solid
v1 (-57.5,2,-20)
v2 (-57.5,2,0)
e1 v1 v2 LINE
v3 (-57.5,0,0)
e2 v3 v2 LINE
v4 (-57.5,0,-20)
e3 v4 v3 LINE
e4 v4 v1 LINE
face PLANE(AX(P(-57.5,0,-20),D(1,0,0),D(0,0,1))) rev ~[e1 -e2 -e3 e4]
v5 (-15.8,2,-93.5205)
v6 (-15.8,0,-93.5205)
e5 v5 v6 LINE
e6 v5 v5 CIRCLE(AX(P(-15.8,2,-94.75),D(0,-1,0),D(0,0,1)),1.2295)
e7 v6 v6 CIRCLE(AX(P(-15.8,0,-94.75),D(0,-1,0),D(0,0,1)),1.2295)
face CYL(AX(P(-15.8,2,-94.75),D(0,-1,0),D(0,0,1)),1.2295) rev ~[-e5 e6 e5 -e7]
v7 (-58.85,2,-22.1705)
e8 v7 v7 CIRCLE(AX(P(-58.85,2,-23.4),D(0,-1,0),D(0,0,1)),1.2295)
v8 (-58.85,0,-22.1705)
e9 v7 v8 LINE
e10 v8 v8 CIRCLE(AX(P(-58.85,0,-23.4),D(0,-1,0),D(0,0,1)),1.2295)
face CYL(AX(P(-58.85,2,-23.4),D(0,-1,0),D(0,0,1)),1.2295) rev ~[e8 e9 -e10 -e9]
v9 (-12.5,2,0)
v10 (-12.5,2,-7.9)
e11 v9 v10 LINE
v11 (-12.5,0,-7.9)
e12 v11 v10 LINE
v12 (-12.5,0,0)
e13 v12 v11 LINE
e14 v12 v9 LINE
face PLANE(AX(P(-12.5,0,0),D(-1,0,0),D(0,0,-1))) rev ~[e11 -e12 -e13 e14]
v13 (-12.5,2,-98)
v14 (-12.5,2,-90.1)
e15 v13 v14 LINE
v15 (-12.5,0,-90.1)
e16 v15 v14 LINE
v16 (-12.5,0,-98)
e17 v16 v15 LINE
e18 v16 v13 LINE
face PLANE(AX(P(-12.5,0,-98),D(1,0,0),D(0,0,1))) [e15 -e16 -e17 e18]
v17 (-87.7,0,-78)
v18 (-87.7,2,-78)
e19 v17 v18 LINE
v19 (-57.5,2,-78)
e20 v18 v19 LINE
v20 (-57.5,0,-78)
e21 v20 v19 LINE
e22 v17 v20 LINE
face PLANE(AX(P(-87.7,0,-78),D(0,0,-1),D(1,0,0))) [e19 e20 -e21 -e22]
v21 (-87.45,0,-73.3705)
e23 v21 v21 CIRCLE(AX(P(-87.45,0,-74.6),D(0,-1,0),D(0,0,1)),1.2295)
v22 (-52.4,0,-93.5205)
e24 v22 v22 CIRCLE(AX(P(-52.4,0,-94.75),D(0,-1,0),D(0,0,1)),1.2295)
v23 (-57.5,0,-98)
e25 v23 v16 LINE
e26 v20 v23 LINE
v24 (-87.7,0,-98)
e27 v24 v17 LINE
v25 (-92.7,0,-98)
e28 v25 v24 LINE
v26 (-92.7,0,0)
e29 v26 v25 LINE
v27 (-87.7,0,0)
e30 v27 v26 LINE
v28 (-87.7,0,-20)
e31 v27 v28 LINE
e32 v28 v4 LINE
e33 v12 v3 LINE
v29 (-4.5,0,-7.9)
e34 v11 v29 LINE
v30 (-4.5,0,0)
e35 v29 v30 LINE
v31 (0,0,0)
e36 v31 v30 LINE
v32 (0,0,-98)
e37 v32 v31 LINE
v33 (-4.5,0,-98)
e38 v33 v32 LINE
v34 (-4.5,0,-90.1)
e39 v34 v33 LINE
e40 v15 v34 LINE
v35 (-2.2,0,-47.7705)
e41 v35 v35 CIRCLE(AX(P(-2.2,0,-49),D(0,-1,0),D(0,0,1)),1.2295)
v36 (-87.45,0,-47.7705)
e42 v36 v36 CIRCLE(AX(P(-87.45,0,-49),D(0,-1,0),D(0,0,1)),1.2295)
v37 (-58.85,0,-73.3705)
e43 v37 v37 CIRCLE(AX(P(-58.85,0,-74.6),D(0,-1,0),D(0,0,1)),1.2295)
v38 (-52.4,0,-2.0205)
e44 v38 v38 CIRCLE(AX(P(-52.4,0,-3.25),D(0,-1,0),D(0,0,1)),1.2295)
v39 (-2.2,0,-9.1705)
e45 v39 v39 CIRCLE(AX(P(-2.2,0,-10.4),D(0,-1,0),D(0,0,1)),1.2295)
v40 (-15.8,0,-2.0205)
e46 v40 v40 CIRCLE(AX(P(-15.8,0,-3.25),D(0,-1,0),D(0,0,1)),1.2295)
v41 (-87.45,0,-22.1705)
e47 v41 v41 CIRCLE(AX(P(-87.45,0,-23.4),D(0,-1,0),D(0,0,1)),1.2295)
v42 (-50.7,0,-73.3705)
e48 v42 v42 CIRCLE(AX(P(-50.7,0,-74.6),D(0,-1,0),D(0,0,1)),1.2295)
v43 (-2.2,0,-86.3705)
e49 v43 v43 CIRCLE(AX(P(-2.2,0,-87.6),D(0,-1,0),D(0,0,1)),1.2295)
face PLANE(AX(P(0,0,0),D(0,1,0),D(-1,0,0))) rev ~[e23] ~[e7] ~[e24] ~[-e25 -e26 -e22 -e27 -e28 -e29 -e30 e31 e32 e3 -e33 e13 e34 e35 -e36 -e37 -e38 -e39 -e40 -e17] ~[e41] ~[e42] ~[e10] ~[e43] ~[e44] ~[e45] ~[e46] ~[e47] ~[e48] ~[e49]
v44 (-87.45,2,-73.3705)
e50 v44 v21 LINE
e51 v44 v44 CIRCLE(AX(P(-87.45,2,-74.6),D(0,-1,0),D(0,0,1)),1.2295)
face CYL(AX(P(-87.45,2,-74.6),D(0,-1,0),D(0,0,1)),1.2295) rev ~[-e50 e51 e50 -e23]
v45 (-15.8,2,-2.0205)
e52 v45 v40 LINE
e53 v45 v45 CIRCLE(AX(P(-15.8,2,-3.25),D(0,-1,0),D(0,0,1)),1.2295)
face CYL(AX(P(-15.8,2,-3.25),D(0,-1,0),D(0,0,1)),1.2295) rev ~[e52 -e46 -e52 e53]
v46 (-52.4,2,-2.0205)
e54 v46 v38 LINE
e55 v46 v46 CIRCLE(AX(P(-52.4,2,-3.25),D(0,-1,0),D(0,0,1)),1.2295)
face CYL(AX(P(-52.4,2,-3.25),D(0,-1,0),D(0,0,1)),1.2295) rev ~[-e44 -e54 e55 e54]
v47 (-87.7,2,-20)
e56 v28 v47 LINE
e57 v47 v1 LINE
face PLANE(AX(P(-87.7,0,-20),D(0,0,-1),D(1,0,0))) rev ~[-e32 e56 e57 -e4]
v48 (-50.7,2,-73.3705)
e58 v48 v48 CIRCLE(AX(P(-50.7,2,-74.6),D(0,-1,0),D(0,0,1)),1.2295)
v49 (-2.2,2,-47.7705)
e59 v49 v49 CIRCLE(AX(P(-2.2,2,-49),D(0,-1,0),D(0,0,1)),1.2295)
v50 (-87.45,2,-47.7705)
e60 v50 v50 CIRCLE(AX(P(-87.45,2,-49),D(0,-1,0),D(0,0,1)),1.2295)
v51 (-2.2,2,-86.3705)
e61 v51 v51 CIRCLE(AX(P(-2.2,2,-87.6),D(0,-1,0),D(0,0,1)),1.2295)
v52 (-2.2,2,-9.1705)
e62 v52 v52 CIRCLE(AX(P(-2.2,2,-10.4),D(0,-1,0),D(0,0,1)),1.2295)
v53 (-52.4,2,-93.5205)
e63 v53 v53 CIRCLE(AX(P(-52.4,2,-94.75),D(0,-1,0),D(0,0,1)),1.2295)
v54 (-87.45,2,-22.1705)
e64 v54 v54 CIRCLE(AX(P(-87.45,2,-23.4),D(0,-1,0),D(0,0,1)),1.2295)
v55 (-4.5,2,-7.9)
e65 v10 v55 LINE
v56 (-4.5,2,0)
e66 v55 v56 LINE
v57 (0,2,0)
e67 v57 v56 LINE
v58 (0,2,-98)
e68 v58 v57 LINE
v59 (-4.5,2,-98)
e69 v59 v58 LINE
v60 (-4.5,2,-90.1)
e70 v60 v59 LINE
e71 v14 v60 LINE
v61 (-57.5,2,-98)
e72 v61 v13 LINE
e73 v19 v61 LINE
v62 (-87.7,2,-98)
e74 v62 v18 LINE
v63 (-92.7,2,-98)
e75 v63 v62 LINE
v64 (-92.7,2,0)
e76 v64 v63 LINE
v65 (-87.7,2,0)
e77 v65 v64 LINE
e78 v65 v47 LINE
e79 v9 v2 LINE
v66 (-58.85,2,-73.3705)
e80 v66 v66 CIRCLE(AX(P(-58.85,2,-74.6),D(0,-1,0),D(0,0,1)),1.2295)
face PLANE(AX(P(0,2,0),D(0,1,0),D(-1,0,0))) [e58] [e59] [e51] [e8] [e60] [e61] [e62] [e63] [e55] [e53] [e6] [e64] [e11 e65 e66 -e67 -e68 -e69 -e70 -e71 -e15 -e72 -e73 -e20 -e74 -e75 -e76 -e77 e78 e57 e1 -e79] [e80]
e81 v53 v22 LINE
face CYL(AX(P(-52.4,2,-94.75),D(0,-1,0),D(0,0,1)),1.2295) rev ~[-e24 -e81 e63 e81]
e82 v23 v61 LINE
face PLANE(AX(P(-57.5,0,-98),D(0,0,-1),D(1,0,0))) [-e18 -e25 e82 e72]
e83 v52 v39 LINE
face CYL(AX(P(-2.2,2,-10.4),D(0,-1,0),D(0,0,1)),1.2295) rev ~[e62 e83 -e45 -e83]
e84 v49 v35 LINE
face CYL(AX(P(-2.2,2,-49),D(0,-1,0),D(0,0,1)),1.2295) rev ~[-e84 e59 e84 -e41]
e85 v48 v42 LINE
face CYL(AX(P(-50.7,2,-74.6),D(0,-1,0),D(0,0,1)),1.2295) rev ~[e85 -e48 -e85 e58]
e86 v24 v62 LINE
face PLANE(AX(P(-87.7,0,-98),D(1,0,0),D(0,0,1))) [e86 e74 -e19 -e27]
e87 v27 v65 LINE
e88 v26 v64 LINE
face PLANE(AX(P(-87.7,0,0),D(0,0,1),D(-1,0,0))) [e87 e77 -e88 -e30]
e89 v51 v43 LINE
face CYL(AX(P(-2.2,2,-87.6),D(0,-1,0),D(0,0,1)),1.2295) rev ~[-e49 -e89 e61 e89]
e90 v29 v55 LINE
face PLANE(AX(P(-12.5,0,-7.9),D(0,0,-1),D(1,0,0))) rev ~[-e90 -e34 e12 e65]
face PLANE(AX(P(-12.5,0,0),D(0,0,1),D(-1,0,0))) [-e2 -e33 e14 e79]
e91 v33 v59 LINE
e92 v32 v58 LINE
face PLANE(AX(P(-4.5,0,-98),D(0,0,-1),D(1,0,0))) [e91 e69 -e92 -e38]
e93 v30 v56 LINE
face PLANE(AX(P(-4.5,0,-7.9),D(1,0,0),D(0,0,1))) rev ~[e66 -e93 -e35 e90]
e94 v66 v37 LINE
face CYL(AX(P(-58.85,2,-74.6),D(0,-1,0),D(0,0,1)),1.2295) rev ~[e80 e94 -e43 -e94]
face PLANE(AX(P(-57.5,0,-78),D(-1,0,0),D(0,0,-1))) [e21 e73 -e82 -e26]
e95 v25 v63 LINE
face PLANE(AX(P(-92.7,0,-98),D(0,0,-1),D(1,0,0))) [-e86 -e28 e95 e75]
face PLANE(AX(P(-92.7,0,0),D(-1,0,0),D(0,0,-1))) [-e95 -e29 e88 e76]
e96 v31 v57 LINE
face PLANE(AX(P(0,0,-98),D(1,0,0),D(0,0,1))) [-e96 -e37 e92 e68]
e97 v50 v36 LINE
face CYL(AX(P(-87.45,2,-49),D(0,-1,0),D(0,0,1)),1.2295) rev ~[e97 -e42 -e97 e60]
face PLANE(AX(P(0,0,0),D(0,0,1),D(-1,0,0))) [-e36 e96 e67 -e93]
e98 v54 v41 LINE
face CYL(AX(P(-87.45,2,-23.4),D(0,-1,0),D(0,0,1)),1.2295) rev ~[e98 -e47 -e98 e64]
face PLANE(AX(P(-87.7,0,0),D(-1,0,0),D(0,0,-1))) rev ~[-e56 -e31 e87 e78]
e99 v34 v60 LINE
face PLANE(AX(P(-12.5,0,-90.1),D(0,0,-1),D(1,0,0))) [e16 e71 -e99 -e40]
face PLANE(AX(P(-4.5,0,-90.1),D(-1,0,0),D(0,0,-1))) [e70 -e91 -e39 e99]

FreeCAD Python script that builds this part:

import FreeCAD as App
import Part
import Sketcher

V = App.Vector
Q = App.Units.Quantity

doc = App.newDocument("Part")
body = doc.addObject("PartDesign::Body", "Body")

# Sketch on XZ plane
sketch1 = body.newObject("Sketcher::SketchObject", "Sketch")
sketch1.AttachmentSupport = (doc.getObject("XZ_Plane"), [""])
sketch1.MapMode = "FlatFace"
sketch1.addGeometry(Part.LineSegment(V(-4.5, 0, 0), V(0, 0, 0)), False)
sketch1.addGeometry(Part.LineSegment(V(0, 0, 0), V(0, -98, 0)), False)
sketch1.addGeometry(Part.LineSegment(V(0, -98, 0), V(-4.5, -98, 0)), False)
sketch1.addGeometry(Part.LineSegment(V(-4.5, -98, 0), V(-4.5, -90.1, 0)), False)
sketch1.addGeometry(Part.LineSegment(V(-4.5, -90.1, 0), V(-12.5, -90.1, 0)), False)
sketch1.addGeometry(Part.LineSegment(V(-12.5, -90.1, 0), V(-12.5, -98, 0)), False)
sketch1.addGeometry(Part.LineSegment(V(-12.5, -98, 0), V(-57.5, -98, 0)), False)
sketch1.addGeometry(Part.LineSegment(V(-57.5, -98, 0), V(-57.5, -78, 0)), False)
sketch1.addGeometry(Part.LineSegment(V(-57.5, -78, 0), V(-87.7, -78, 0)), False)
sketch1.addGeometry(Part.LineSegment(V(-87.7, -78, 0), V(-87.7, -98, 0)), False)
sketch1.addGeometry(Part.LineSegment(V(-87.7, -98, 0), V(-92.7, -98, 0)), False)
sketch1.addGeometry(Part.LineSegment(V(-92.7, -98, 0), V(-92.7, 0, 0)), False)
sketch1.addGeometry(Part.LineSegment(V(-92.7, 0, 0), V(-87.7, 0, 0)), False)
sketch1.addGeometry(Part.LineSegment(V(-87.7, 0, 0), V(-87.7, -20, 0)), False)
sketch1.addGeometry(Part.LineSegment(V(-87.7, -20, 0), V(-57.5, -20, 0)), False)
sketch1.addGeometry(Part.LineSegment(V(-57.5, -20, 0), V(-57.5, 0, 0)), False)
sketch1.addGeometry(Part.LineSegment(V(-57.5, 0, 0), V(-12.5, 0, 0)), False)
sketch1.addGeometry(Part.LineSegment(V(-12.5, 0, 0), V(-12.5, -7.9, 0)), False)
sketch1.addGeometry(Part.LineSegment(V(-12.5, -7.9, 0), V(-4.5, -7.9, 0)), False)
sketch1.addGeometry(Part.LineSegment(V(-4.5, -7.9, 0), V(-4.5, 0, 0)), False)
sketch1.addConstraint(Sketcher.Constraint("Coincident", 0, 2, 1, 1))
sketch1.addConstraint(Sketcher.Constraint("Coincident", 1, 2, 2, 1))
sketch1.addConstraint(Sketcher.Constraint("Coincident", 2, 2, 3, 1))
sketch1.addConstraint(Sketcher.Constraint("Coincident", 3, 2, 4, 1))
sketch1.addConstraint(Sketcher.Constraint("Coincident", 4, 2, 5, 1))
sketch1.addConstraint(Sketcher.Constraint("Coincident", 5, 2, 6, 1))
sketch1.addConstraint(Sketcher.Constraint("Coincident", 6, 2, 7, 1))
sketch1.addConstraint(Sketcher.Constraint("Coincident", 7, 2, 8, 1))
sketch1.addConstraint(Sketcher.Constraint("Coincident", 8, 2, 9, 1))
sketch1.addConstraint(Sketcher.Constraint("Coincident", 9, 2, 10, 1))
sketch1.addConstraint(Sketcher.Constraint("Coincident", 10, 2, 11, 1))
sketch1.addConstraint(Sketcher.Constraint("Coincident", 11, 2, 12, 1))
sketch1.addConstraint(Sketcher.Constraint("Coincident", 12, 2, 13, 1))
sketch1.addConstraint(Sketcher.Constraint("Coincident", 13, 2, 14, 1))
sketch1.addConstraint(Sketcher.Constraint("Coincident", 14, 2, 15, 1))
sketch1.addConstraint(Sketcher.Constraint("Coincident", 15, 2, 16, 1))
sketch1.addConstraint(Sketcher.Constraint("Coincident", 16, 2, 17, 1))
sketch1.addConstraint(Sketcher.Constraint("Coincident", 17, 2, 18, 1))
sketch1.addConstraint(Sketcher.Constraint("Coincident", 18, 2, 19, 1))
sketch1.addConstraint(Sketcher.Constraint("Coincident", 19, 2, 0, 1))
sketch1.addConstraint(Sketcher.Constraint("Horizontal", 0))
sketch1.addConstraint(Sketcher.Constraint("Vertical", 1))
sketch1.addConstraint(Sketcher.Constraint("Horizontal", 2))
sketch1.addConstraint(Sketcher.Constraint("Vertical", 3))
sketch1.addConstraint(Sketcher.Constraint("Horizontal", 4))
sketch1.addConstraint(Sketcher.Constraint("Vertical", 5))
sketch1.addConstraint(Sketcher.Constraint("Horizontal", 6))
sketch1.addConstraint(Sketcher.Constraint("Vertical", 7))
sketch1.addConstraint(Sketcher.Constraint("Horizontal", 8))
sketch1.addConstraint(Sketcher.Constraint("Vertical", 9))
sketch1.addConstraint(Sketcher.Constraint("Horizontal", 10))
sketch1.addConstraint(Sketcher.Constraint("Vertical", 11))
sketch1.addConstraint(Sketcher.Constraint("Horizontal", 12))
sketch1.addConstraint(Sketcher.Constraint("Vertical", 13))
sketch1.addConstraint(Sketcher.Constraint("Horizontal", 14))
sketch1.addConstraint(Sketcher.Constraint("Vertical", 15))
sketch1.addConstraint(Sketcher.Constraint("Horizontal", 16))
sketch1.addConstraint(Sketcher.Constraint("Vertical", 17))
sketch1.addConstraint(Sketcher.Constraint("Horizontal", 18))
sketch1.addConstraint(Sketcher.Constraint("Vertical", 19))
sketch1.addConstraint(Sketcher.Constraint("Coincident", 0, 2, -1, 1))
sketch1.addConstraint(Sketcher.Constraint("PointOnObject", 11, 2, -1))
sketch1.addConstraint(Sketcher.Constraint("PointOnObject", 15, 2, -1))
sketch1.addConstraint(Sketcher.Constraint("Horizontal", 2, 2, 5, 2))
sketch1.addConstraint(Sketcher.Constraint("Horizontal", 6, 2, 9, 2))
sketch1.addConstraint(Sketcher.Constraint("Vertical", 9, 2, 12, 2))
sketch1.addConstraint(Sketcher.Constraint("Vertical", 7, 2, 14, 2))
sketch1.addConstraint(Sketcher.Constraint("Vertical", 5, 2, 16, 2))
sketch1.addConstraint(Sketcher.Constraint("Vertical", 3, 2, 18, 2))
sketch1.addConstraint(Sketcher.Constraint("Equal", 9, 13))
sketch1.addConstraint(Sketcher.Constraint("Equal", 5, 17))
sketch1.addConstraint(Sketcher.Constraint("DistanceX", 4, 2, 4, 1, Q("8 mm")))
sketch1.addConstraint(Sketcher.Constraint("DistanceY", 1, 2, 1, 1, Q("98 mm")))
sketch1.addConstraint(Sketcher.Constraint("DistanceY", 7, 1, 7, 2, Q("20 mm")))
sketch1.addConstraint(Sketcher.Constraint("DistanceX", 0, 1, 0, 2, Q("4.5 mm")))
sketch1.addConstraint(Sketcher.Constraint("DistanceX", 8, 2, 8, 1, Q("30.2 mm")))
sketch1.addConstraint(Sketcher.Constraint("DistanceY", 3, 1, 3, 2, Q("7.9 mm")))
sketch1.addConstraint(Sketcher.Constraint("DistanceX", 6, 2, -1, 1, Q("57.5 mm")))
sketch1.addConstraint(Sketcher.Constraint("DistanceX", 10, 2, -1, 1, Q("92.7 mm")))
pad1 = body.newObject("PartDesign::Pad", "Pad")
pad1.Profile = sketch1
pad1.Length = 2
pad1.Reversed = True

# Sketch on XZ plane
sketch2 = body.newObject("Sketcher::SketchObject", "Sketch001")
sketch2.AttachmentSupport = (doc.getObject("XZ_Plane"), [""])
sketch2.MapMode = "FlatFace"
sketch2.AttachmentOffset = App.Placement(V(0, 0, -2), App.Rotation())
sketch2.addGeometry(Part.Circle(V(-2.2, -87.6, 0), V(0, 0, 1), 1.2), False)
sketch2.addGeometry(Part.Circle(V(-2.2, -49, 0), V(0, 0, 1), 1.2), False)
sketch2.addGeometry(Part.Circle(V(-15.8, -94.8, 0), V(0, 0, 1), 1.2), False)
sketch2.addGeometry(Part.Circle(V(-52.4, -94.8, 0), V(0, 0, 1), 1.2), False)
sketch2.addGeometry(Part.Circle(V(-58.9, -74.6, 0), V(0, 0, 1), 1.2), False)
sketch2.addGeometry(Part.Circle(V(-87.5, -74.6, 0), V(0, 0, 1), 1.2), False)
sketch2.addGeometry(Part.Circle(V(-87.5, -49, 0), V(0, 0, 1), 1.2), False)
sketch2.addGeometry(Part.Circle(V(-52.4, -3.2, 0), V(0, 0, 1), 1.2), False)
sketch2.addGeometry(Part.Circle(V(-15.8, -3.2, 0), V(0, 0, 1), 1.2), False)
sketch2.addGeometry(Part.Circle(V(-87.5, -23.4, 0), V(0, 0, 1), 1.2), False)
sketch2.addGeometry(Part.Circle(V(-58.9, -23.4, 0), V(0, 0, 1), 1.2), False)
sketch2.addGeometry(Part.Circle(V(-2.2, -10.4, 0), V(0, 0, 1), 1.2), False)
sketch2.addGeometry(Part.Circle(V(-50.7, -74.6, 0), V(0, 0, 1), 1.2), False)
sketch2.addConstraint(Sketcher.Constraint("Equal", 0, 1))
sketch2.addConstraint(Sketcher.Constraint("Equal", 1, 2))
sketch2.addConstraint(Sketcher.Constraint("Equal", 2, 3))
sketch2.addConstraint(Sketcher.Constraint("Equal", 3, 4))
sketch2.addConstraint(Sketcher.Constraint("Equal", 4, 5))
sketch2.addConstraint(Sketcher.Constraint("Equal", 5, 6))
sketch2.addConstraint(Sketcher.Constraint("Equal", 6, 7))
sketch2.addConstraint(Sketcher.Constraint("Equal", 7, 8))
sketch2.addConstraint(Sketcher.Constraint("Equal", 8, 9))
sketch2.addConstraint(Sketcher.Constraint("Equal", 9, 10))
sketch2.addConstraint(Sketcher.Constraint("Equal", 10, 11))
sketch2.addConstraint(Sketcher.Constraint("Equal", 11, 12))
sketch2.addConstraint(Sketcher.Constraint("Horizontal", 2, 3, 3, 3))
sketch2.addConstraint(Sketcher.Constraint("Horizontal", 4, 3, 5, 3))
sketch2.addConstraint(Sketcher.Constraint("Horizontal", 1, 3, 6, 3))
sketch2.addConstraint(Sketcher.Constraint("Horizontal", 7, 3, 8, 3))
sketch2.addConstraint(Sketcher.Constraint("Horizontal", 9, 3, 10, 3))
sketch2.addConstraint(Sketcher.Constraint("Horizontal", 5, 3, 12, 3))
sketch2.addConstraint(Sketcher.Constraint("Vertical", 0, 3, 1, 3))
sketch2.addConstraint(Sketcher.Constraint("Vertical", 5, 3, 6, 3))
sketch2.addConstraint(Sketcher.Constraint("Vertical", 3, 3, 7, 3))
sketch2.addConstraint(Sketcher.Constraint("Vertical", 2, 3, 8, 3))
sketch2.addConstraint(Sketcher.Constraint("Vertical", 6, 3, 9, 3))
sketch2.addConstraint(Sketcher.Constraint("Vertical", 4, 3, 10, 3))
sketch2.addConstraint(Sketcher.Constraint("Vertical", 1, 3, 11, 3))
sketch2.addConstraint(Sketcher.Constraint("Diameter", 0, Q("2.459 mm")))
sketch2.addConstraint(Sketcher.Constraint("DistanceY", 1, 3, -1, 1, Q("49 mm")))
sketch2.addConstraint(Sketcher.Constraint("DistanceY", 0, 3, 4, 3, Q("13 mm")))
sketch2.addConstraint(Sketcher.Constraint("DistanceY", 10, 3, 11, 3, Q("13 mm")))
sketch2.addConstraint(Sketcher.Constraint("DistanceX", 0, 3, -1, 1, Q("2.2 mm")))
sketch2.addConstraint(Sketcher.Constraint("DistanceY", 0, 3, -1, 1, Q("87.6 mm")))
sketch2.addConstraint(Sketcher.Constraint("DistanceX", 2, 3, -1, 1, Q("15.8 mm")))
sketch2.addConstraint(Sketcher.Constraint("DistanceX", 3, 3, -1, 1, Q("52.4 mm")))
sketch2.addConstraint(Sketcher.Constraint("DistanceY", 9, 3, -1, 1, Q("23.4 mm")))
sketch2.addConstraint(Sketcher.Constraint("DistanceX", 12, 3, -1, 1, Q("50.7 mm")))
sketch2.addConstraint(Sketcher.Constraint("DistanceX", 5, 3, 4, 3, Q("28.6 mm")))
sketch2.addConstraint(Sketcher.Constraint("DistanceY", 3, 3, 7, 3, Q("91.5 mm")))
sketch2.addConstraint(Sketcher.Constraint("DistanceY", 2, 3, -1, 1, Q("94.75 mm")))
sketch2.addConstraint(Sketcher.Constraint("DistanceX", 4, 3, -1, 1, Q("58.85 mm")))
doc.recompute()
hole = body.newObject("PartDesign::Hole", "Hole")
hole.Profile = sketch2
hole.ThreadType = "None"
hole.Diameter = 2.459
hole.DepthType = "ThroughAll"
hole.Reversed = True

doc.recompute()
